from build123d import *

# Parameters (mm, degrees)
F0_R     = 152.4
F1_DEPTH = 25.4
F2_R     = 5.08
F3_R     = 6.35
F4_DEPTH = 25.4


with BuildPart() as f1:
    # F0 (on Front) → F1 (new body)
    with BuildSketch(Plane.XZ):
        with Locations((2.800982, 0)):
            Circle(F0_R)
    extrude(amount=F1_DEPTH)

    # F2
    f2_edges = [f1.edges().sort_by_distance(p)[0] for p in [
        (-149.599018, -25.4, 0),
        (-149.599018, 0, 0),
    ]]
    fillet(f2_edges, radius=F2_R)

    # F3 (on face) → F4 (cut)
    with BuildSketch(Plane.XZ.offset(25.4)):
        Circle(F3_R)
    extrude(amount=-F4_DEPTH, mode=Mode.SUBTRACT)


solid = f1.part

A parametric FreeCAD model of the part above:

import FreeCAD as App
import Part
import Sketcher
Q = App.Units.Quantity


def edges_at(feature, points):
    """Names of the edges that pass closest to the given points."""
    edges = feature.Shape.Edges
    near = lambda p: min(range(len(edges)), key=lambda i: edges[i].distToShape(Part.Vertex(*p))[0])
    return sorted({f"Edge{near(p) + 1}" for p in points})

doc = App.newDocument("Part")
params = doc.addObject("Spreadsheet::Sheet", "Params")
for row, (alias, value) in enumerate([
    ("sketch1_diameter", "12 in"),
    ("pad1_length", "1 in"),
    ("fillet_radius", "0.2 in"),
    ("sketch2_diameter", "0.5 in"),
    ("pocket1_length", "1 in"),
], start=1):
    params.set(f"A{row}", alias)
    params.set(f"B{row}", "=" + value)
    params.setAlias(f"B{row}", alias)

body = doc.addObject("PartDesign::Body", "Body")

# Sketch on XZ plane
sketch1 = doc.addObject("Sketcher::SketchObject", "Sketch")
body.addObject(sketch1)
sketch1.AttachmentSupport = (doc.XZ_Plane, [""])
sketch1.MapMode = "FlatFace"
sketch1.addGeometry(Part.Circle(App.Vector(3, 0, 0), App.Vector(0, 0, 1), 152), False)
sketch1.addConstraint(Sketcher.Constraint("PointOnObject", 0, 3, -1))
sketch1.addConstraint(Sketcher.Constraint("Diameter", 0, Q("12 in")))
sketch1.addConstraint(Sketcher.Constraint("DistanceX", -1, 1, 0, 3, Q("2.800982 mm")))
sketch1.setExpression("Constraints[1]", "Params.sketch1_diameter")
pad1 = doc.addObject("PartDesign::Pad", "Pad")
body.addObject(pad1)
pad1.Profile = sketch1
pad1.setExpression("Length", "Params.pad1_length")
doc.recompute()

fillet = doc.addObject("PartDesign::Fillet", "Fillet")
body.addObject(fillet)
fillet.Base = (pad1, edges_at(pad1, [(-149.599, -25.4, 0), (-149.599, 0, 0)]))
fillet.setExpression("Radius", "Params.fillet_radius")

# Sketch on XZ plane
sketch2 = doc.addObject("Sketcher::SketchObject", "Sketch001")
body.addObject(sketch2)
sketch2.AttachmentSupport = (doc.XZ_Plane, [""])
sketch2.MapMode = "FlatFace"
sketch2.AttachmentOffset = App.Placement(App.Vector(0, 0, 1 * 25.4), App.Rotation())
sketch2.addGeometry(Part.Circle(App.Vector(0, 0, 0), App.Vector(0, 0, 1), 6), False)
sketch2.addConstraint(Sketcher.Constraint("Coincident", 0, 3, -1, 1))
sketch2.addConstraint(Sketcher.Constraint("Diameter", 0, Q("0.5 in")))
sketch2.setExpression("Constraints[1]", "Params.sketch2_diameter")
pocket1 = doc.addObject("PartDesign::Pocket", "Pocket")
body.addObject(pocket1)
pocket1.Profile = sketch2
pocket1.setExpression("Length", "Params.pocket1_length")

doc.recompute()
